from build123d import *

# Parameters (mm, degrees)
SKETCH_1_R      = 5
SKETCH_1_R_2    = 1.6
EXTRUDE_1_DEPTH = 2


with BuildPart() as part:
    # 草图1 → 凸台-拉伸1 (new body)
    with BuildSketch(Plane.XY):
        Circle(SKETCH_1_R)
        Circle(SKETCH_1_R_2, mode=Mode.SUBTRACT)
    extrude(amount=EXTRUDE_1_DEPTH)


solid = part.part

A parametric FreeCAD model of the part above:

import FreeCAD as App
import Part
import Sketcher

V = App.Vector
Q = App.Units.Quantity

doc = App.newDocument("Part")
body = doc.addObject("PartDesign::Body", "Body")

# Sketch on XY plane
sketch1 = body.newObject("Sketcher::SketchObject", "Sketch")
sketch1.AttachmentSupport = (doc.getObject("XY_Plane"), [""])
sketch1.MapMode = "FlatFace"
sketch1.addGeometry([
    Part.Circle(V(0, 0, 0), V(0, 0, 1), 5),
    Part.Circle(V(0, 0, 0), V(0, 0, 1), 1.6),
], False)
sketch1.addConstraint([
    Sketcher.Constraint("Coincident", 0, 3, -1, 1),
    Sketcher.Constraint("Coincident", 1, 3, -1, 1),
    Sketcher.Constraint("Diameter", 0, Q("10 mm")),
    Sketcher.Constraint("Diameter", 1, Q("3.2 mm")),
])
pad1 = body.newObject("PartDesign::Pad", "Pad")
pad1.Profile = sketch1
pad1.Length = 2

doc.recompute()
